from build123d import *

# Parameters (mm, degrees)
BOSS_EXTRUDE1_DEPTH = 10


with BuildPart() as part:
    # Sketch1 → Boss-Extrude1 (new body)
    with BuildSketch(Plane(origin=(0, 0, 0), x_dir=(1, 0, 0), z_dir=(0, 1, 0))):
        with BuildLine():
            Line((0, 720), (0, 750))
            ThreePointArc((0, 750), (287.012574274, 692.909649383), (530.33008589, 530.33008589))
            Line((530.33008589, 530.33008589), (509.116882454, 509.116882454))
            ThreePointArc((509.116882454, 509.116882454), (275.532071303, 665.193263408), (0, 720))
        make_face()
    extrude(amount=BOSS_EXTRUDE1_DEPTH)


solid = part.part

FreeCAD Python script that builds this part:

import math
import FreeCAD as App
import Part
import Sketcher
from FreeCAD import Vector
Q = App.Units.Quantity

doc = App.newDocument("Part")
body = doc.addObject("PartDesign::Body", "Body")

sketch1 = body.newObject("Sketcher::SketchObject", "Sketch")
sketch1.AttachmentSupport = (doc.getObject("XZ_Plane"), [""])
sketch1.MapMode = "FlatFace"
sketch1.addGeometry(Part.LineSegment(Vector(0, -750, 0), Vector(0, -720, 0)), False)
sketch1.addGeometry(Part.ArcOfCircle(Part.Circle(Vector(0, 0, 0), Vector(0, 0, 1), 720), math.radians(-90), math.radians(-45)), False)
sketch1.addGeometry(Part.LineSegment(Vector(509.116882, -509.116882, 0), Vector(530.330086, -530.330086, 0)), False)
sketch1.addGeometry(Part.ArcOfCircle(Part.Circle(Vector(0, 0, 0), Vector(0, 0, 1), 750), math.radians(-90), math.radians(-45)), False)
sketch1.addConstraint(Sketcher.Constraint("Coincident", 0, 2, 1, 1))
sketch1.addConstraint(Sketcher.Constraint("Coincident", 1, 2, 2, 1))
sketch1.addConstraint(Sketcher.Constraint("Coincident", 2, 2, 3, 2))
sketch1.addConstraint(Sketcher.Constraint("Coincident", 3, 1, 0, 1))
sketch1.addConstraint(Sketcher.Constraint("Vertical", 0))
sketch1.addConstraint(Sketcher.Constraint("Coincident", 1, 3, -1, 1))
sketch1.addConstraint(Sketcher.Constraint("Coincident", 3, 3, -1, 1))
sketch1.addConstraint(Sketcher.Constraint("PointOnObject", 0, 2, -2))
sketch1.addConstraint(Sketcher.Constraint("Radius", 1, Q("720 mm")))
sketch1.addConstraint(Sketcher.Constraint("Radius", 3, Q("750 mm")))
sketch1.addConstraint(Sketcher.Constraint("Angle", 2, Q("-45 deg")))
sketch1.addConstraint(Sketcher.Constraint("DistanceX", -1, 1, 2, 2, Q("530.330086 mm")))
pad1 = body.newObject("PartDesign::Pad", "Pad")
pad1.Profile = sketch1
pad1.Length = 10
pad1.Reversed = True

doc.recompute()
